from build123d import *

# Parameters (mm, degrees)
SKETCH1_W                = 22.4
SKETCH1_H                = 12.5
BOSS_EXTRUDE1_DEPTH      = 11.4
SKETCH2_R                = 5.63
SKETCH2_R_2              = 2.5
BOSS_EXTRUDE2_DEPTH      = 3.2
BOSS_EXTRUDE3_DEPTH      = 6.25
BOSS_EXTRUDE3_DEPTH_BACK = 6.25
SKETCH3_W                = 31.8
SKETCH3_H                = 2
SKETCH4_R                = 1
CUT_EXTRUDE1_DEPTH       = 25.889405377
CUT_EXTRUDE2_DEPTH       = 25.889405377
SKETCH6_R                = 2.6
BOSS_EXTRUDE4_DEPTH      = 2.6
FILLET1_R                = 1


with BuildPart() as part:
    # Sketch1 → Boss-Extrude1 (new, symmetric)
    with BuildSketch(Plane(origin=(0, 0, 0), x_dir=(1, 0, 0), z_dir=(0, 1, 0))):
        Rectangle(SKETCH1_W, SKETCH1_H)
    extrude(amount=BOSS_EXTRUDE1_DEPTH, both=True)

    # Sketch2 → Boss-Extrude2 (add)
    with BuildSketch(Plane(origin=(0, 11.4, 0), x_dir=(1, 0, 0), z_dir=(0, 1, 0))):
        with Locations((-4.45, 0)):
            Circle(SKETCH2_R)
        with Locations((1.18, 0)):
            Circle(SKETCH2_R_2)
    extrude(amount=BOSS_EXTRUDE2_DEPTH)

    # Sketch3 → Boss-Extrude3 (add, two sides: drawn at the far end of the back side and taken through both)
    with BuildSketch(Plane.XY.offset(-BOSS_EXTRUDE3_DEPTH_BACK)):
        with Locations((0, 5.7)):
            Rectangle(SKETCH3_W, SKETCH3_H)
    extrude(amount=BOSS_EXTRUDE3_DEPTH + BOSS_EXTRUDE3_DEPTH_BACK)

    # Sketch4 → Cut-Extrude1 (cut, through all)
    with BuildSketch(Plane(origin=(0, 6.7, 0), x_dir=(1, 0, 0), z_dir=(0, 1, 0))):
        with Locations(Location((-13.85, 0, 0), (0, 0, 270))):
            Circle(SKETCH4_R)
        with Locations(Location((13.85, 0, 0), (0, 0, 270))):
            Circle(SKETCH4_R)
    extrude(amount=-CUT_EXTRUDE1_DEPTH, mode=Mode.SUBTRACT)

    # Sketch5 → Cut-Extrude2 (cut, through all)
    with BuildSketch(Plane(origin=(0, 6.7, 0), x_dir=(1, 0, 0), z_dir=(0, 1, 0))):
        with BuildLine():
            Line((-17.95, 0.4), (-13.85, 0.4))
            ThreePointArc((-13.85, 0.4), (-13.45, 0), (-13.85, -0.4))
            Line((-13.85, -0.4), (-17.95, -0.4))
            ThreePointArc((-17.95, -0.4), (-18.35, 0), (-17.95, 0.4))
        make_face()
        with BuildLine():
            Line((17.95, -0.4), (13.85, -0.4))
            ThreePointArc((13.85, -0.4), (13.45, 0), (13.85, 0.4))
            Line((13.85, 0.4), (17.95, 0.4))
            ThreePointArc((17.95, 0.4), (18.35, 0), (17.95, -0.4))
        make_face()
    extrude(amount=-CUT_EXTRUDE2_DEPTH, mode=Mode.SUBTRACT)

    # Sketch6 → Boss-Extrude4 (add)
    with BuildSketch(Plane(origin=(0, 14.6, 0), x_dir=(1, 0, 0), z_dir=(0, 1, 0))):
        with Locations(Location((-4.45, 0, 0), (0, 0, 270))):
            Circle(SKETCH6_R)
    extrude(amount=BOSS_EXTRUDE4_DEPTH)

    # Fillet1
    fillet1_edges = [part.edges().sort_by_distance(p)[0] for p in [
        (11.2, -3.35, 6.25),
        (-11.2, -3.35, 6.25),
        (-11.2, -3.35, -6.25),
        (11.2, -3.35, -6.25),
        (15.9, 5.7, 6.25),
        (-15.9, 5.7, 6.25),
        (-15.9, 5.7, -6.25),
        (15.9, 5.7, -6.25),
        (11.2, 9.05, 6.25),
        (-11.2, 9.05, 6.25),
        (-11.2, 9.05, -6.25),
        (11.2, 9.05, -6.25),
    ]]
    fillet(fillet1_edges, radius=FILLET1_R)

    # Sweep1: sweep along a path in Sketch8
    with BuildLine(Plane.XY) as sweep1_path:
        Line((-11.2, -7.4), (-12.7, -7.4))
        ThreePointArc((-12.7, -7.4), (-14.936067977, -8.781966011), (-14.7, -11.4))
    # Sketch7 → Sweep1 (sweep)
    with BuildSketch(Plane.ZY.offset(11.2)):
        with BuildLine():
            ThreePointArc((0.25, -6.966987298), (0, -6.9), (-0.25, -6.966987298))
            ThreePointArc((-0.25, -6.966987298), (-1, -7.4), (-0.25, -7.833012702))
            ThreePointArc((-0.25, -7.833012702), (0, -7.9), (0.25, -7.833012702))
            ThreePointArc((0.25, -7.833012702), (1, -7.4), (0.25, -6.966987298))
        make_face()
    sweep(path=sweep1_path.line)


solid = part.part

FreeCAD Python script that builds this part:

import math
import FreeCAD as App
import Part
import Sketcher
from FreeCAD import Vector


def edges_at(feature, points):
    """Names of the edges that pass closest to the given points."""
    edges = feature.Shape.Edges
    near = lambda p: min(range(len(edges)), key=lambda i: edges[i].distToShape(Part.Vertex(*p))[0])
    return sorted({f"Edge{near(p) + 1}" for p in points})


def add_polygon(sketch, points):
    """Adds a closed chain of lines whose ends are joined by coincident constraints."""
    first, n = sketch.GeometryCount, len(points)
    for a, b in zip(points, points[1:] + points[:1]):
        sketch.addGeometry(Part.LineSegment(App.Vector(*a, 0), App.Vector(*b, 0)), False)
    for i in range(n):
        sketch.addConstraint(Sketcher.Constraint("Coincident", first + i, 2, first + (i + 1) % n, 1))

doc = App.newDocument("Part")
params = doc.addObject("Spreadsheet::Sheet", "Params")
for row, (alias, value) in enumerate([
    ("sketch1_width", "22.4 mm"),
    ("sketch1_height", "12.5 mm"),
    ("pad1_length", "22.8 mm"),
    ("sketch2_radius", "2.5 mm"),
    ("sketch2_radius2", "5.63 mm"),
    ("pad2_length", "3.2 mm"),
    ("sketch3_height", "2 mm"),
    ("sketch3_width", "31.8 mm"),
    ("pad3_length", "6.25 mm"),
    ("pad3_length2", "6.25 mm"),
    ("sketch4_diameter", "2 mm"),
    ("sketch5_radius", "0.4 mm"),
    ("sketch5_width", "4.1 mm"),
    ("sketch6_diameter", "5.2 mm"),
    ("pad4_length", "2.6 mm"),
    ("fillet_radius", "1 mm"),
    ("sketch7_radius", "0.5 mm"),
    ("sketch8_radius", "2.5 mm"),
    ("sketch8_width", "1.5 mm"),
    ("sketch8_width2", "2 mm"),
], start=1):
    params.set(f"A{row}", alias)
    params.set(f"B{row}", "=" + value)
    params.setAlias(f"B{row}", alias)

body = doc.addObject("PartDesign::Body", "Body")

# Sketch on XZ plane
sketch1 = doc.addObject("Sketcher::SketchObject", "Sketch")
body.addObject(sketch1)
sketch1.AttachmentSupport = (doc.XZ_Plane, [""])
sketch1.MapMode = "FlatFace"
add_polygon(sketch1, [(-11.2, -6.25), (-11.2, 6.25), (11.2, 6.25), (11.2, -6.25)])  # lines 0-3
sketch1.addConstraint([
    Sketcher.Constraint("Vertical", 0),
    Sketcher.Constraint("Horizontal", 1),
    Sketcher.Constraint("Vertical", 2),
    Sketcher.Constraint("Horizontal", 3),
    Sketcher.Constraint("Symmetric", 0, 2, 2, 2, -1, 1),
    Sketcher.Constraint("DistanceX", 1, 1, 1, 2, 22.4),
    Sketcher.Constraint("DistanceY", 0, 1, 0, 2, 12.5),
])
sketch1.setExpression("Constraints[9]", "Params.sketch1_width")
sketch1.setExpression("Constraints[10]", "Params.sketch1_height")
pad1 = doc.addObject("PartDesign::Pad", "Pad")
body.addObject(pad1)
pad1.Profile = sketch1
pad1.setExpression("Length", "Params.pad1_length")
pad1.Midplane = True

# Sketch on XZ plane
sketch2 = doc.addObject("Sketcher::SketchObject", "Sketch001")
body.addObject(sketch2)
sketch2.AttachmentSupport = (doc.XZ_Plane, [""])
sketch2.MapMode = "FlatFace"
sketch2.AttachmentOffset = App.Placement(Vector(0, 0, -11.4), App.Rotation())
sketch2.addGeometry([
    Part.ArcOfCircle(Part.Circle(Vector(-4.45, 0, 0), Vector(0, 0, 1), 5.63), math.radians(25.655982), math.radians(334.344018)),
    Part.ArcOfCircle(Part.Circle(Vector(1.18, 0, 0), Vector(0, 0, 1), 2.5), math.radians(-102.827991), math.radians(102.827991)),
], False)
sketch2.addConstraint([
    Sketcher.Constraint("Coincident", 0, 1, 1, 2),
    Sketcher.Constraint("Coincident", 1, 1, 0, 2),
    Sketcher.Constraint("Symmetric", 0, 1, 1, 1, -1),
    Sketcher.Constraint("Radius", 1, 2.5),
    Sketcher.Constraint("Radius", 0, 5.63),
    Sketcher.Constraint("DistanceX", 0, 3, -1, 1, 4.45),
    Sketcher.Constraint("DistanceX", -1, 1, 1, 3, 1.18),
])
sketch2.setExpression("Constraints[3]", "Params.sketch2_radius")
sketch2.setExpression("Constraints[4]", "Params.sketch2_radius2")
pad2 = doc.addObject("PartDesign::Pad", "Pad001")
body.addObject(pad2)
pad2.Profile = sketch2
pad2.setExpression("Length", "Params.pad2_length")
pad2.Reversed = True

# Sketch on XY plane
sketch3 = doc.addObject("Sketcher::SketchObject", "Sketch002")
body.addObject(sketch3)
sketch3.AttachmentSupport = (doc.XY_Plane, [""])
sketch3.MapMode = "FlatFace"
add_polygon(sketch3, [(-15.9, 6.7), (-15.9, 4.7), (15.9, 4.7), (15.9, 6.7)])  # lines 0-3
sketch3.addConstraint([
    Sketcher.Constraint("Vertical", 0),
    Sketcher.Constraint("Horizontal", 1),
    Sketcher.Constraint("Vertical", 2),
    Sketcher.Constraint("Horizontal", 3),
    Sketcher.Constraint("DistanceY", 0, 2, 0, 1, 2.0),
    Sketcher.Constraint("DistanceX", 1, 1, 1, 2, 31.8),
    Sketcher.Constraint("DistanceX", 0, 2, -1, 1, 15.9),
    Sketcher.Constraint("DistanceY", -1, 1, 0, 2, 4.7),
])
sketch3.setExpression("Constraints[8]", "Params.sketch3_height")
sketch3.setExpression("Constraints[9]", "Params.sketch3_width")
pad3 = doc.addObject("PartDesign::Pad", "Pad002")
body.addObject(pad3)
pad3.Profile = sketch3
pad3.Type = "TwoLengths"
pad3.setExpression("Length", "Params.pad3_length")
pad3.setExpression("Length2", "Params.pad3_length2")

# Sketch on XZ plane
sketch4 = doc.addObject("Sketcher::SketchObject", "Sketch003")
body.addObject(sketch4)
sketch4.AttachmentSupport = (doc.XZ_Plane, [""])
sketch4.MapMode = "FlatFace"
sketch4.AttachmentOffset = App.Placement(Vector(0, 0, -6.7), App.Rotation())
sketch4.addGeometry([
    Part.Circle(Vector(-13.85, 0, 0), Vector(0, 0, 1), 1),
    Part.Circle(Vector(13.85, 0, 0), Vector(0, 0, 1), 1),
], False)
sketch4.addConstraint([
    Sketcher.Constraint("Equal", 0, 1),
    Sketcher.Constraint("Symmetric", 0, 3, 1, 3, -1, 1),
    Sketcher.Constraint("PointOnObject", 0, 3, -1),
    Sketcher.Constraint("Diameter", 0, 2.0),
    Sketcher.Constraint("DistanceX", 0, 3, 1, 3, 27.7),
])
sketch4.setExpression("Constraints[3]", "Params.sketch4_diameter")
pocket1 = doc.addObject("PartDesign::Pocket", "Pocket")
body.addObject(pocket1)
pocket1.Profile = sketch4
pocket1.Type = "ThroughAll"
pocket1.Reversed = True

# Sketch on XZ plane
sketch5 = doc.addObject("Sketcher::SketchObject", "Sketch004")
body.addObject(sketch5)
sketch5.AttachmentSupport = (doc.XZ_Plane, [""])
sketch5.MapMode = "FlatFace"
sketch5.AttachmentOffset = App.Placement(Vector(0, 0, -6.7), App.Rotation())
sketch5.addGeometry([
    Part.LineSegment(Vector(-13.85, -0.4, 0), Vector(-17.95, -0.4, 0)),  # 0
    Part.ArcOfCircle(Part.Circle(Vector(-17.95, 0, 0), Vector(0, 0, 1), 0.4), math.radians(90), math.radians(270)),  # 1
    Part.LineSegment(Vector(-17.95, 0.4, 0), Vector(-13.85, 0.4, 0)),  # 2
    Part.ArcOfCircle(Part.Circle(Vector(-13.85, 0, 0), Vector(0, 0, 1), 0.4), math.radians(-90), math.radians(90)),  # 3
    Part.LineSegment(Vector(13.85, 0.4, 0), Vector(17.95, 0.4, 0)),  # 4
    Part.ArcOfCircle(Part.Circle(Vector(17.95, 0, 0), Vector(0, 0, 1), 0.4), math.radians(-90), math.radians(90)),  # 5
    Part.LineSegment(Vector(17.95, -0.4, 0), Vector(13.85, -0.4, 0)),  # 6
    Part.ArcOfCircle(Part.Circle(Vector(13.85, 0, 0), Vector(0, 0, 1), 0.4), math.radians(90), math.radians(270)),  # 7
], False)
sketch5.addConstraint([
    Sketcher.Constraint("Tangent", 0, 2, 1, 2),
    Sketcher.Constraint("Tangent", 1, 1, 2, 1),
    Sketcher.Constraint("Tangent", 2, 2, 3, 2),
    Sketcher.Constraint("Tangent", 3, 1, 0, 1),
    Sketcher.Constraint("Tangent", 4, 2, 5, 2),
    Sketcher.Constraint("Tangent", 5, 1, 6, 1),
    Sketcher.Constraint("Tangent", 6, 2, 7, 2),
    Sketcher.Constraint("Tangent", 7, 1, 4, 1),
    Sketcher.Constraint("Horizontal", 0),
    Sketcher.Constraint("Horizontal", 2),
    Sketcher.Constraint("Horizontal", 4),
    Sketcher.Constraint("Horizontal", 6),
    Sketcher.Constraint("Equal", 3, 5),
    Sketcher.Constraint("Symmetric", 1, 3, 5, 3, -1, 1),
    Sketcher.Constraint("Symmetric", 3, 3, 7, 3, -2),
    Sketcher.Constraint("Radius", 1, 0.4),
    Sketcher.Constraint("DistanceX", 0, 2, 0, 1, 4.1),
    Sketcher.Constraint("DistanceX", 3, 3, 5, 3, 31.8),
])
sketch5.setExpression("Constraints[15]", "Params.sketch5_radius")
sketch5.setExpression("Constraints[16]", "Params.sketch5_width")
pocket2 = doc.addObject("PartDesign::Pocket", "Pocket001")
body.addObject(pocket2)
pocket2.Profile = sketch5
pocket2.Type = "ThroughAll"
pocket2.Reversed = True

# Sketch on XZ plane
sketch6 = doc.addObject("Sketcher::SketchObject", "Sketch005")
body.addObject(sketch6)
sketch6.AttachmentSupport = (doc.XZ_Plane, [""])
sketch6.MapMode = "FlatFace"
sketch6.AttachmentOffset = App.Placement(Vector(0, 0, -14.6), App.Rotation())
sketch6.addGeometry(Part.Circle(Vector(-4.45, 0, 0), Vector(0, 0, 1), 2.6), False)
sketch6.addConstraint([
    Sketcher.Constraint("PointOnObject", 0, 3, -1),
    Sketcher.Constraint("Diameter", 0, 5.2),
    Sketcher.Constraint("DistanceX", 0, 3, -1, 1, 4.45),
])
sketch6.setExpression("Constraints[1]", "Params.sketch6_diameter")
pad4 = doc.addObject("PartDesign::Pad", "Pad003")
body.addObject(pad4)
pad4.Profile = sketch6
pad4.setExpression("Length", "Params.pad4_length")
pad4.Reversed = True
doc.recompute()

fillet = doc.addObject("PartDesign::Fillet", "Fillet")
body.addObject(fillet)
fillet.Base = (pad4, edges_at(pad4, [
    (11.2, -3.35, 6.25),
    (-11.2, -3.35, 6.25),
    (-11.2, -3.35, -6.25),
    (11.2, -3.35, -6.25),
    (15.9, 5.7, 6.25),
    (-15.9, 5.7, 6.25),
    (-15.9, 5.7, -6.25),
    (15.9, 5.7, -6.25),
    (11.2, 9.05, 6.25),
    (-11.2, 9.05, 6.25),
    (-11.2, 9.05, -6.25),
    (11.2, 9.05, -6.25),
]))
fillet.setExpression("Radius", "Params.fillet_radius")

# Sketch on YZ plane
sketch7 = doc.addObject("Sketcher::SketchObject", "Sketch006")
body.addObject(sketch7)
sketch7.AttachmentSupport = (doc.YZ_Plane, [""])
sketch7.MapMode = "FlatFace"
sketch7.AttachmentOffset = App.Placement(Vector(0, 0, -11.2), App.Rotation())
sketch7.addGeometry([
    Part.ArcOfCircle(Part.Circle(Vector(-7.4, 0, 0), Vector(0, 0, 1), 0.5), math.radians(-30), math.radians(30)),
    Part.ArcOfCircle(Part.Circle(Vector(-7.4, -0.5, 0), Vector(0, 0, 1), 0.5), math.radians(150), math.radians(390)),
    Part.ArcOfCircle(Part.Circle(Vector(-7.4, 0, 0), Vector(0, 0, 1), 0.5), math.radians(150), math.radians(210)),
    Part.ArcOfCircle(Part.Circle(Vector(-7.4, 0.5, 0), Vector(0, 0, 1), 0.5), math.radians(-30), math.radians(210)),
], False)
sketch7.addConstraint([
    Sketcher.Constraint("Coincident", 0, 1, 1, 2),
    Sketcher.Constraint("Coincident", 1, 1, 2, 2),
    Sketcher.Constraint("Coincident", 2, 1, 3, 2),
    Sketcher.Constraint("Coincident", 3, 1, 0, 2),
    Sketcher.Constraint("Coincident", 2, 3, 0, 3),
    Sketcher.Constraint("Equal", 0, 1),
    Sketcher.Constraint("Equal", 1, 2),
    Sketcher.Constraint("Equal", 2, 3),
    Sketcher.Constraint("Symmetric", 1, 3, 3, 3, -1),
    Sketcher.Constraint("PointOnObject", 0, 3, -1),
    Sketcher.Constraint("Horizontal", 0, 1, 1, 1),
    Sketcher.Constraint("Radius", 0, 0.5),
    Sketcher.Constraint("DistanceY", 1, 3, 3, 3, 1.0),
    Sketcher.Constraint("DistanceX", 0, 3, -1, 1, 7.4),
])
sketch7.setExpression("Constraints[11]", "Params.sketch7_radius")

# Sketch on XY plane
sketch8 = doc.addObject("Sketcher::SketchObject", "Sketch007")
body.addObject(sketch8)
sketch8.AttachmentSupport = (doc.XY_Plane, [""])
sketch8.MapMode = "FlatFace"
sketch8.addGeometry([
    Part.LineSegment(Vector(-11.2, -7.4, 0), Vector(-12.7, -7.4, 0)),
    Part.ArcOfCircle(Part.Circle(Vector(-12.7, -9.9, 0), Vector(0, 0, 1), 2.5), math.radians(90), math.radians(216.869898)),
], False)
sketch8.addConstraint([
    Sketcher.Constraint("Tangent", 0, 2, 1, 1),
    Sketcher.Constraint("Horizontal", 0),
    Sketcher.Constraint("Radius", 1, 2.5),
    Sketcher.Constraint("DistanceX", 0, 2, 0, 1, 1.5),
    Sketcher.Constraint("DistanceX", 1, 2, 1, 3, 2.0),
    Sketcher.Constraint("DistanceX", 1, 3, -1, 1, 12.7),
    Sketcher.Constraint("DistanceY", 1, 3, -1, 1, 9.9),
])
sketch8.setExpression("Constraints[2]", "Params.sketch8_radius")
sketch8.setExpression("Constraints[3]", "Params.sketch8_width")
sketch8.setExpression("Constraints[4]", "Params.sketch8_width2")
doc.recompute()

additivepipe = doc.addObject("PartDesign::AdditivePipe", "AdditivePipe")
body.addObject(additivepipe)
additivepipe.Profile = sketch7
additivepipe.Spine = (sketch8, ["Edge1", "Edge2"])

doc.recompute()
